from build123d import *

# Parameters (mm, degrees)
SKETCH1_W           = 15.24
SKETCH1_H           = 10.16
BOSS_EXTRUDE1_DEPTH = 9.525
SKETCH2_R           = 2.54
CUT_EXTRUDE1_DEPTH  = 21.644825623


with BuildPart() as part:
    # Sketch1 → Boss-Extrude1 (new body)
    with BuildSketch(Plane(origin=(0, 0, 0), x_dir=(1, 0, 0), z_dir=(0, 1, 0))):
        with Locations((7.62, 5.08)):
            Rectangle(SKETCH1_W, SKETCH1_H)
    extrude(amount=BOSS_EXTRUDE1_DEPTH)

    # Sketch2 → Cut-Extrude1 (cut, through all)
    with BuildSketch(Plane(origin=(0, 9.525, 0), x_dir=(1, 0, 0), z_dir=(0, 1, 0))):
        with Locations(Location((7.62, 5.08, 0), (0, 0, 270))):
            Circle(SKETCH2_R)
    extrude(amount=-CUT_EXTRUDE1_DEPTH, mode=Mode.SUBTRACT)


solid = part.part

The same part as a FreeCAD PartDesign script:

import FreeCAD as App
import Part
import Sketcher
from FreeCAD import Vector
Q = App.Units.Quantity


def add_polygon(sketch, points):
    """Adds a closed chain of lines whose ends are joined by coincident constraints."""
    first, n = sketch.GeometryCount, len(points)
    for a, b in zip(points, points[1:] + points[:1]):
        sketch.addGeometry(Part.LineSegment(App.Vector(*a, 0), App.Vector(*b, 0)), False)
    for i in range(n):
        sketch.addConstraint(Sketcher.Constraint("Coincident", first + i, 2, first + (i + 1) % n, 1))

doc = App.newDocument("Part")
body = doc.addObject("PartDesign::Body", "Body")

# Sketch on XZ plane
sketch1 = body.newObject("Sketcher::SketchObject", "Sketch")
sketch1.AttachmentSupport = (doc.getObject("XZ_Plane"), [""])
sketch1.MapMode = "FlatFace"
add_polygon(sketch1, [(0, -10), (0, 0), (15, 0), (15, -10)])  # lines 0-3
sketch1.addConstraint(Sketcher.Constraint("Vertical", 0))
sketch1.addConstraint(Sketcher.Constraint("Horizontal", 1))
sketch1.addConstraint(Sketcher.Constraint("Vertical", 2))
sketch1.addConstraint(Sketcher.Constraint("Horizontal", 3))
sketch1.addConstraint(Sketcher.Constraint("Coincident", 0, 2, -1, 1))
sketch1.addConstraint(Sketcher.Constraint("DistanceX", 1, 1, 1, 2, Q("0.6 in")))
sketch1.addConstraint(Sketcher.Constraint("DistanceY", 0, 1, 0, 2, Q("0.4 in")))
pad1 = body.newObject("PartDesign::Pad", "Pad")
pad1.Profile = sketch1
pad1.Length = Q("0.375 in")
pad1.Reversed = True

# Sketch on XZ plane
sketch2 = body.newObject("Sketcher::SketchObject", "Sketch001")
sketch2.AttachmentSupport = (doc.getObject("XZ_Plane"), [""])
sketch2.MapMode = "FlatFace"
sketch2.AttachmentOffset = App.Placement(Vector(0, 0, -0.375 * 25.4), App.Rotation())
sketch2.addGeometry(Part.Circle(Vector(7.6, -5.1, 0), Vector(0, 0, 1), 2.5), False)
sketch2.addConstraint(Sketcher.Constraint("Diameter", 0, Q("0.2 in")))
sketch2.addConstraint(Sketcher.Constraint("DistanceX", -1, 1, 0, 3, Q("0.3 in")))
sketch2.addConstraint(Sketcher.Constraint("DistanceY", 0, 3, -1, 1, Q("0.2 in")))
pocket1 = body.newObject("PartDesign::Pocket", "Pocket")
pocket1.Profile = sketch2
pocket1.Type = "ThroughAll"
pocket1.Reversed = True

doc.recompute()
